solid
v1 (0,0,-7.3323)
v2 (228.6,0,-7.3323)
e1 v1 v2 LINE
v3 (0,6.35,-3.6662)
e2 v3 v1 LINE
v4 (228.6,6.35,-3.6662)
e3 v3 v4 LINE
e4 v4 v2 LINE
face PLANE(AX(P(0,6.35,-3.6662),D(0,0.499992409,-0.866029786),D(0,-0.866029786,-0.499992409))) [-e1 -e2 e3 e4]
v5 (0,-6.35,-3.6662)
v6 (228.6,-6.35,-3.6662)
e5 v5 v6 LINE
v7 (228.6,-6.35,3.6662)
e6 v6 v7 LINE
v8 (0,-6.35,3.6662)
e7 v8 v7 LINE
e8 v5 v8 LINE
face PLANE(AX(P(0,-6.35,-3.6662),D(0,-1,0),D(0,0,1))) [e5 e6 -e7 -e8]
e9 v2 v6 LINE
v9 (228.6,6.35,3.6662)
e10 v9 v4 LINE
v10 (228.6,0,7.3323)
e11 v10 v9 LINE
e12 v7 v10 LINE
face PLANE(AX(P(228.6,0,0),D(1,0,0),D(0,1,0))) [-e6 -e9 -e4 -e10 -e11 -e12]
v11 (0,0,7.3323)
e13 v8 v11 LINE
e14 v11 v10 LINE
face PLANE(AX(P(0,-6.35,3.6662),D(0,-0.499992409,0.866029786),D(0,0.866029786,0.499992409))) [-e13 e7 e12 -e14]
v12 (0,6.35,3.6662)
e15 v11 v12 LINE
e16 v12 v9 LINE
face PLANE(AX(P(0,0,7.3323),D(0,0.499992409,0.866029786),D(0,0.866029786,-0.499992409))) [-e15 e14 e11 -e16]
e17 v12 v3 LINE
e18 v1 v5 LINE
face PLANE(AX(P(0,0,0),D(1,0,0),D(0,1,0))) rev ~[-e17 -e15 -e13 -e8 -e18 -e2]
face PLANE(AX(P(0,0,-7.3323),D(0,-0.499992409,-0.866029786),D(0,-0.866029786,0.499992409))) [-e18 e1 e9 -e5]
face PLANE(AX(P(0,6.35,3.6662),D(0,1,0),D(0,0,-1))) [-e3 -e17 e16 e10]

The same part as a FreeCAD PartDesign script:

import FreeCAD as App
import Part
import Sketcher
Q = App.Units.Quantity


def add_polygon(sketch, points):
    """Adds a closed chain of lines whose ends are joined by coincident constraints."""
    first, n = sketch.GeometryCount, len(points)
    for a, b in zip(points, points[1:] + points[:1]):
        sketch.addGeometry(Part.LineSegment(App.Vector(*a, 0), App.Vector(*b, 0)), False)
    for i in range(n):
        sketch.addConstraint(Sketcher.Constraint("Coincident", first + i, 2, first + (i + 1) % n, 1))

doc = App.newDocument("Part")
body = doc.addObject("PartDesign::Body", "Body")

sketch1 = doc.addObject("Sketcher::SketchObject", "Sketch")
body.addObject(sketch1)
sketch1.AttachmentSupport = (doc.YZ_Plane, [""])
sketch1.MapMode = "FlatFace"
add_polygon(sketch1, [(-6, -4), (0, -7), (6, -4), (6, 4), (0, 7), (-6, 4)])
sketch1.addConstraint([
    Sketcher.Constraint("Vertical", 2),
    Sketcher.Constraint("Vertical", 5),
    Sketcher.Constraint("Symmetric", 0, 2, 3, 2, -1, 1),
    Sketcher.Constraint("Symmetric", 1, 2, 4, 2, -1, 1),
    Sketcher.Constraint("PointOnObject", 0, 2, -2),
    Sketcher.Constraint("Parallel", 0, 3),
    Sketcher.Constraint("Horizontal", 2, 2, 4, 2),
    Sketcher.Constraint("DistanceX", 4, 2, 2, 2, Q("0.5 in")),
    Sketcher.Constraint("Angle", 0, Q("-29.9995 deg")),
    Sketcher.Constraint("DistanceY", 0, 2, 2, 2, Q("0.433 in")),
])
pad1 = doc.addObject("PartDesign::Pad", "Pad")
body.addObject(pad1)
pad1.Profile = sketch1
pad1.Length = Q("9 in")

doc.recompute()
